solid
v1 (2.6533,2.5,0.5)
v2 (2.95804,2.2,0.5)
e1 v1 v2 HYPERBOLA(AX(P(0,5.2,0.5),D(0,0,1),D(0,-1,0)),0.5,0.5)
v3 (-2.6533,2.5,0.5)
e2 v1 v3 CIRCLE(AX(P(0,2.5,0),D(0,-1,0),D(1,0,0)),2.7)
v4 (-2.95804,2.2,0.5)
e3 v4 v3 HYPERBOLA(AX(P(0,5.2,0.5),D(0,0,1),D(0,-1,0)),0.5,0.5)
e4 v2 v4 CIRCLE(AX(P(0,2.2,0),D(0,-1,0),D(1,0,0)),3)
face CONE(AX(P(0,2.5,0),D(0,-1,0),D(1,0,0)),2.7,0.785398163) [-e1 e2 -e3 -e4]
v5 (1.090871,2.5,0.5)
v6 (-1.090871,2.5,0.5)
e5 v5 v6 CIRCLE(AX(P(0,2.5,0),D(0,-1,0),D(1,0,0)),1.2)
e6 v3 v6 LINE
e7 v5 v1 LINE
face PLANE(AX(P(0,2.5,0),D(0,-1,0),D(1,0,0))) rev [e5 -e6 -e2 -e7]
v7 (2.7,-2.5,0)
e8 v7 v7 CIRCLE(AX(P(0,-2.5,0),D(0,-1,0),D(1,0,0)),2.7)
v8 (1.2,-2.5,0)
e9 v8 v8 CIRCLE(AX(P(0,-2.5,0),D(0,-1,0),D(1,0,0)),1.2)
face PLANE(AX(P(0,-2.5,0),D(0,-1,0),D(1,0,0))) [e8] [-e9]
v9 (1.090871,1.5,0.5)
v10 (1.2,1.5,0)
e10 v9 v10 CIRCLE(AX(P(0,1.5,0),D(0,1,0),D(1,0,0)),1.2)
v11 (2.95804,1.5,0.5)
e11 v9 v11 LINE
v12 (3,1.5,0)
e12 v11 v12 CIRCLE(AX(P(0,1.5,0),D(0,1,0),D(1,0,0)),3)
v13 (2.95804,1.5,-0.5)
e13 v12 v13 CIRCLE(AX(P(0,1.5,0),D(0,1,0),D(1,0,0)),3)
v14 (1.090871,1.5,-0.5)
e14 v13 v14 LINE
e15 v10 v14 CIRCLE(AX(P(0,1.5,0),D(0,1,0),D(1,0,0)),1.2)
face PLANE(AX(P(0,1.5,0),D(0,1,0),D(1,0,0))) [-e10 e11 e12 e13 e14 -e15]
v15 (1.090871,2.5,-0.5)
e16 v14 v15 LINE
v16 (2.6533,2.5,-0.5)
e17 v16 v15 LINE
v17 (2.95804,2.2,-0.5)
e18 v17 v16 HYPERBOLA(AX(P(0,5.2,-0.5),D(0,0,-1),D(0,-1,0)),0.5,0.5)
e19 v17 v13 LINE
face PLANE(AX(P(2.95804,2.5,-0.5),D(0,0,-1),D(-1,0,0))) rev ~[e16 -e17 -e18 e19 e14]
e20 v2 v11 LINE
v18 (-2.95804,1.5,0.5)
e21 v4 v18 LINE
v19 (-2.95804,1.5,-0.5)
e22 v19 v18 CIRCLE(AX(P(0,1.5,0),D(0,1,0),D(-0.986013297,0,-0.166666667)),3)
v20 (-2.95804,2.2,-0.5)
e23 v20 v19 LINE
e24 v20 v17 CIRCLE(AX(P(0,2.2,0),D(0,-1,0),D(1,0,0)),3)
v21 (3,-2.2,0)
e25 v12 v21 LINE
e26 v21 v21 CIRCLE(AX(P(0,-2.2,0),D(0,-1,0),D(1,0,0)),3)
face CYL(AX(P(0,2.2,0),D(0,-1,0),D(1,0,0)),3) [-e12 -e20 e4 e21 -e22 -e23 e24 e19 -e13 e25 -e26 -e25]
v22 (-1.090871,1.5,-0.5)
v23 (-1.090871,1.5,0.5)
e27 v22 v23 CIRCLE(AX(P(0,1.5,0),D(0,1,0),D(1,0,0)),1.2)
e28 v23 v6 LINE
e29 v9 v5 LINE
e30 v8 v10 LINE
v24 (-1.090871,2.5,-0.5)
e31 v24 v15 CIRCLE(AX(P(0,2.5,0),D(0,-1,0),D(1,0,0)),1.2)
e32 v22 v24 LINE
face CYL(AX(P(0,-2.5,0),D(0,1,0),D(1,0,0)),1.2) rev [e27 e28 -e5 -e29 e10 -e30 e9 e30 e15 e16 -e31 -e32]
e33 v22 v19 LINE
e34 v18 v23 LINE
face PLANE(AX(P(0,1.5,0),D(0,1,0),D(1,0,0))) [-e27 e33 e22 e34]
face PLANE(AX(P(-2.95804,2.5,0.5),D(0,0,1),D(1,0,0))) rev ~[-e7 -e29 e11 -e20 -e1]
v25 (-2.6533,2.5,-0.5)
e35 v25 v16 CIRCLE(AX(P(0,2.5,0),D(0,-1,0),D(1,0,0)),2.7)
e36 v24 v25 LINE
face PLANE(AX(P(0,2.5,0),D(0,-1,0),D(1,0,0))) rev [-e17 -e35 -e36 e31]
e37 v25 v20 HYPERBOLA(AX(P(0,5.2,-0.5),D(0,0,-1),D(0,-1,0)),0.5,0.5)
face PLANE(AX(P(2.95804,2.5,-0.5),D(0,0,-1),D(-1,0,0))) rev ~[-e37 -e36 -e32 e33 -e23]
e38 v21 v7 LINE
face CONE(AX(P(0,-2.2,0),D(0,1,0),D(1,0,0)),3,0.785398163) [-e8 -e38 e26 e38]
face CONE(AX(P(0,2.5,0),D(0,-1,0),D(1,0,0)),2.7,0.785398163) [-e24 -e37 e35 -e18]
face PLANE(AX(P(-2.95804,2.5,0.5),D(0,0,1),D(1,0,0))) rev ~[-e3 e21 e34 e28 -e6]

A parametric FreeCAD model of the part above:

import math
import FreeCAD as App
import Part
import Sketcher

V = App.Vector
Q = App.Units.Quantity


def add_polygon(sketch, points):
    """Adds a closed chain of lines whose ends are joined by coincident constraints."""
    first, n = sketch.GeometryCount, len(points)
    for a, b in zip(points, points[1:] + points[:1]):
        sketch.addGeometry(Part.LineSegment(App.Vector(*a, 0), App.Vector(*b, 0)), False)
    for i in range(n):
        sketch.addConstraint(Sketcher.Constraint("Coincident", first + i, 2, first + (i + 1) % n, 1))

doc = App.newDocument("Part")
body = doc.addObject("PartDesign::Body", "Body")

# Sketch on XY plane
sketch1 = doc.addObject("Sketcher::SketchObject", "Sketch")
body.addObject(sketch1)
sketch1.AttachmentSupport = (doc.XY_Plane, [""])
sketch1.MapMode = "FlatFace"
add_polygon(sketch1, [(1.2, 2.5), (1.2, -2.5), (2.7, -2.5), (3, -2.2), (3, 2.2), (2.7, 2.5)])  # lines 0-5
sketch1.addConstraint([
    Sketcher.Constraint("Vertical", 0),
    Sketcher.Constraint("Horizontal", 1),
    Sketcher.Constraint("Vertical", 3),
    Sketcher.Constraint("Horizontal", 5),
    Sketcher.Constraint("Symmetric", 1, 2, 4, 2, -1),
    Sketcher.Constraint("Perpendicular", 2, 4),
    Sketcher.Constraint("Equal", 2, 4),
    Sketcher.Constraint("DistanceY", 0, 2, 0, 1, Q("5 mm")),
    Sketcher.Constraint("DistanceX", 1, 2, 2, 2, Q("0.3 mm")),
    Sketcher.Constraint("DistanceX", 1, 1, 1, 2, Q("1.5 mm")),
    Sketcher.Constraint("DistanceX", -1, 1, 2, 2, Q("3 mm")),
])
revolution = doc.addObject("PartDesign::Revolution", "Revolution")
body.addObject(revolution)
revolution.Profile = sketch1
revolution.ReferenceAxis = (sketch1, ["V_Axis"])
revolution.Angle = 360

# Sketch on XZ plane
sketch2 = doc.addObject("Sketcher::SketchObject", "Sketch001")
body.addObject(sketch2)
sketch2.AttachmentSupport = (doc.XZ_Plane, [""])
sketch2.MapMode = "FlatFace"
sketch2.AttachmentOffset = App.Placement(V(0, 0, -2.5), App.Rotation())
sketch2.addGeometry([
    Part.ArcOfCircle(Part.Circle(V(0, 0, 0), V(0, 0, 1), 3), math.radians(170.405932), math.radians(189.594068)),
    Part.LineSegment(V(-2.95804, 0.5, 0), V(2.95804, 0.5, 0)),
    Part.ArcOfCircle(Part.Circle(V(0, 0, 0), V(0, 0, 1), 3), math.radians(-9.594068), math.radians(9.594068)),
    Part.LineSegment(V(2.95804, -0.5, 0), V(-2.95804, -0.5, 0)),
], False)
sketch2.addConstraint([
    Sketcher.Constraint("Coincident", 0, 1, 1, 1),
    Sketcher.Constraint("Coincident", 1, 2, 2, 2),
    Sketcher.Constraint("Coincident", 2, 1, 3, 1),
    Sketcher.Constraint("Coincident", 3, 2, 0, 2),
    Sketcher.Constraint("Horizontal", 1),
    Sketcher.Constraint("Horizontal", 3),
    Sketcher.Constraint("Coincident", 0, 3, -1, 1),
    Sketcher.Constraint("Coincident", 2, 3, -1, 1),
    Sketcher.Constraint("Equal", 0, 2),
    Sketcher.Constraint("Vertical", 1, 2, 2, 1),
    Sketcher.Constraint("Radius", 0, Q("3 mm")),
    Sketcher.Constraint("DistanceY", 2, 1, 1, 2, Q("1 mm")),
])
pocket1 = doc.addObject("PartDesign::Pocket", "Pocket")
body.addObject(pocket1)
pocket1.Profile = sketch2
pocket1.Length = 1
pocket1.Reversed = True

doc.recompute()
